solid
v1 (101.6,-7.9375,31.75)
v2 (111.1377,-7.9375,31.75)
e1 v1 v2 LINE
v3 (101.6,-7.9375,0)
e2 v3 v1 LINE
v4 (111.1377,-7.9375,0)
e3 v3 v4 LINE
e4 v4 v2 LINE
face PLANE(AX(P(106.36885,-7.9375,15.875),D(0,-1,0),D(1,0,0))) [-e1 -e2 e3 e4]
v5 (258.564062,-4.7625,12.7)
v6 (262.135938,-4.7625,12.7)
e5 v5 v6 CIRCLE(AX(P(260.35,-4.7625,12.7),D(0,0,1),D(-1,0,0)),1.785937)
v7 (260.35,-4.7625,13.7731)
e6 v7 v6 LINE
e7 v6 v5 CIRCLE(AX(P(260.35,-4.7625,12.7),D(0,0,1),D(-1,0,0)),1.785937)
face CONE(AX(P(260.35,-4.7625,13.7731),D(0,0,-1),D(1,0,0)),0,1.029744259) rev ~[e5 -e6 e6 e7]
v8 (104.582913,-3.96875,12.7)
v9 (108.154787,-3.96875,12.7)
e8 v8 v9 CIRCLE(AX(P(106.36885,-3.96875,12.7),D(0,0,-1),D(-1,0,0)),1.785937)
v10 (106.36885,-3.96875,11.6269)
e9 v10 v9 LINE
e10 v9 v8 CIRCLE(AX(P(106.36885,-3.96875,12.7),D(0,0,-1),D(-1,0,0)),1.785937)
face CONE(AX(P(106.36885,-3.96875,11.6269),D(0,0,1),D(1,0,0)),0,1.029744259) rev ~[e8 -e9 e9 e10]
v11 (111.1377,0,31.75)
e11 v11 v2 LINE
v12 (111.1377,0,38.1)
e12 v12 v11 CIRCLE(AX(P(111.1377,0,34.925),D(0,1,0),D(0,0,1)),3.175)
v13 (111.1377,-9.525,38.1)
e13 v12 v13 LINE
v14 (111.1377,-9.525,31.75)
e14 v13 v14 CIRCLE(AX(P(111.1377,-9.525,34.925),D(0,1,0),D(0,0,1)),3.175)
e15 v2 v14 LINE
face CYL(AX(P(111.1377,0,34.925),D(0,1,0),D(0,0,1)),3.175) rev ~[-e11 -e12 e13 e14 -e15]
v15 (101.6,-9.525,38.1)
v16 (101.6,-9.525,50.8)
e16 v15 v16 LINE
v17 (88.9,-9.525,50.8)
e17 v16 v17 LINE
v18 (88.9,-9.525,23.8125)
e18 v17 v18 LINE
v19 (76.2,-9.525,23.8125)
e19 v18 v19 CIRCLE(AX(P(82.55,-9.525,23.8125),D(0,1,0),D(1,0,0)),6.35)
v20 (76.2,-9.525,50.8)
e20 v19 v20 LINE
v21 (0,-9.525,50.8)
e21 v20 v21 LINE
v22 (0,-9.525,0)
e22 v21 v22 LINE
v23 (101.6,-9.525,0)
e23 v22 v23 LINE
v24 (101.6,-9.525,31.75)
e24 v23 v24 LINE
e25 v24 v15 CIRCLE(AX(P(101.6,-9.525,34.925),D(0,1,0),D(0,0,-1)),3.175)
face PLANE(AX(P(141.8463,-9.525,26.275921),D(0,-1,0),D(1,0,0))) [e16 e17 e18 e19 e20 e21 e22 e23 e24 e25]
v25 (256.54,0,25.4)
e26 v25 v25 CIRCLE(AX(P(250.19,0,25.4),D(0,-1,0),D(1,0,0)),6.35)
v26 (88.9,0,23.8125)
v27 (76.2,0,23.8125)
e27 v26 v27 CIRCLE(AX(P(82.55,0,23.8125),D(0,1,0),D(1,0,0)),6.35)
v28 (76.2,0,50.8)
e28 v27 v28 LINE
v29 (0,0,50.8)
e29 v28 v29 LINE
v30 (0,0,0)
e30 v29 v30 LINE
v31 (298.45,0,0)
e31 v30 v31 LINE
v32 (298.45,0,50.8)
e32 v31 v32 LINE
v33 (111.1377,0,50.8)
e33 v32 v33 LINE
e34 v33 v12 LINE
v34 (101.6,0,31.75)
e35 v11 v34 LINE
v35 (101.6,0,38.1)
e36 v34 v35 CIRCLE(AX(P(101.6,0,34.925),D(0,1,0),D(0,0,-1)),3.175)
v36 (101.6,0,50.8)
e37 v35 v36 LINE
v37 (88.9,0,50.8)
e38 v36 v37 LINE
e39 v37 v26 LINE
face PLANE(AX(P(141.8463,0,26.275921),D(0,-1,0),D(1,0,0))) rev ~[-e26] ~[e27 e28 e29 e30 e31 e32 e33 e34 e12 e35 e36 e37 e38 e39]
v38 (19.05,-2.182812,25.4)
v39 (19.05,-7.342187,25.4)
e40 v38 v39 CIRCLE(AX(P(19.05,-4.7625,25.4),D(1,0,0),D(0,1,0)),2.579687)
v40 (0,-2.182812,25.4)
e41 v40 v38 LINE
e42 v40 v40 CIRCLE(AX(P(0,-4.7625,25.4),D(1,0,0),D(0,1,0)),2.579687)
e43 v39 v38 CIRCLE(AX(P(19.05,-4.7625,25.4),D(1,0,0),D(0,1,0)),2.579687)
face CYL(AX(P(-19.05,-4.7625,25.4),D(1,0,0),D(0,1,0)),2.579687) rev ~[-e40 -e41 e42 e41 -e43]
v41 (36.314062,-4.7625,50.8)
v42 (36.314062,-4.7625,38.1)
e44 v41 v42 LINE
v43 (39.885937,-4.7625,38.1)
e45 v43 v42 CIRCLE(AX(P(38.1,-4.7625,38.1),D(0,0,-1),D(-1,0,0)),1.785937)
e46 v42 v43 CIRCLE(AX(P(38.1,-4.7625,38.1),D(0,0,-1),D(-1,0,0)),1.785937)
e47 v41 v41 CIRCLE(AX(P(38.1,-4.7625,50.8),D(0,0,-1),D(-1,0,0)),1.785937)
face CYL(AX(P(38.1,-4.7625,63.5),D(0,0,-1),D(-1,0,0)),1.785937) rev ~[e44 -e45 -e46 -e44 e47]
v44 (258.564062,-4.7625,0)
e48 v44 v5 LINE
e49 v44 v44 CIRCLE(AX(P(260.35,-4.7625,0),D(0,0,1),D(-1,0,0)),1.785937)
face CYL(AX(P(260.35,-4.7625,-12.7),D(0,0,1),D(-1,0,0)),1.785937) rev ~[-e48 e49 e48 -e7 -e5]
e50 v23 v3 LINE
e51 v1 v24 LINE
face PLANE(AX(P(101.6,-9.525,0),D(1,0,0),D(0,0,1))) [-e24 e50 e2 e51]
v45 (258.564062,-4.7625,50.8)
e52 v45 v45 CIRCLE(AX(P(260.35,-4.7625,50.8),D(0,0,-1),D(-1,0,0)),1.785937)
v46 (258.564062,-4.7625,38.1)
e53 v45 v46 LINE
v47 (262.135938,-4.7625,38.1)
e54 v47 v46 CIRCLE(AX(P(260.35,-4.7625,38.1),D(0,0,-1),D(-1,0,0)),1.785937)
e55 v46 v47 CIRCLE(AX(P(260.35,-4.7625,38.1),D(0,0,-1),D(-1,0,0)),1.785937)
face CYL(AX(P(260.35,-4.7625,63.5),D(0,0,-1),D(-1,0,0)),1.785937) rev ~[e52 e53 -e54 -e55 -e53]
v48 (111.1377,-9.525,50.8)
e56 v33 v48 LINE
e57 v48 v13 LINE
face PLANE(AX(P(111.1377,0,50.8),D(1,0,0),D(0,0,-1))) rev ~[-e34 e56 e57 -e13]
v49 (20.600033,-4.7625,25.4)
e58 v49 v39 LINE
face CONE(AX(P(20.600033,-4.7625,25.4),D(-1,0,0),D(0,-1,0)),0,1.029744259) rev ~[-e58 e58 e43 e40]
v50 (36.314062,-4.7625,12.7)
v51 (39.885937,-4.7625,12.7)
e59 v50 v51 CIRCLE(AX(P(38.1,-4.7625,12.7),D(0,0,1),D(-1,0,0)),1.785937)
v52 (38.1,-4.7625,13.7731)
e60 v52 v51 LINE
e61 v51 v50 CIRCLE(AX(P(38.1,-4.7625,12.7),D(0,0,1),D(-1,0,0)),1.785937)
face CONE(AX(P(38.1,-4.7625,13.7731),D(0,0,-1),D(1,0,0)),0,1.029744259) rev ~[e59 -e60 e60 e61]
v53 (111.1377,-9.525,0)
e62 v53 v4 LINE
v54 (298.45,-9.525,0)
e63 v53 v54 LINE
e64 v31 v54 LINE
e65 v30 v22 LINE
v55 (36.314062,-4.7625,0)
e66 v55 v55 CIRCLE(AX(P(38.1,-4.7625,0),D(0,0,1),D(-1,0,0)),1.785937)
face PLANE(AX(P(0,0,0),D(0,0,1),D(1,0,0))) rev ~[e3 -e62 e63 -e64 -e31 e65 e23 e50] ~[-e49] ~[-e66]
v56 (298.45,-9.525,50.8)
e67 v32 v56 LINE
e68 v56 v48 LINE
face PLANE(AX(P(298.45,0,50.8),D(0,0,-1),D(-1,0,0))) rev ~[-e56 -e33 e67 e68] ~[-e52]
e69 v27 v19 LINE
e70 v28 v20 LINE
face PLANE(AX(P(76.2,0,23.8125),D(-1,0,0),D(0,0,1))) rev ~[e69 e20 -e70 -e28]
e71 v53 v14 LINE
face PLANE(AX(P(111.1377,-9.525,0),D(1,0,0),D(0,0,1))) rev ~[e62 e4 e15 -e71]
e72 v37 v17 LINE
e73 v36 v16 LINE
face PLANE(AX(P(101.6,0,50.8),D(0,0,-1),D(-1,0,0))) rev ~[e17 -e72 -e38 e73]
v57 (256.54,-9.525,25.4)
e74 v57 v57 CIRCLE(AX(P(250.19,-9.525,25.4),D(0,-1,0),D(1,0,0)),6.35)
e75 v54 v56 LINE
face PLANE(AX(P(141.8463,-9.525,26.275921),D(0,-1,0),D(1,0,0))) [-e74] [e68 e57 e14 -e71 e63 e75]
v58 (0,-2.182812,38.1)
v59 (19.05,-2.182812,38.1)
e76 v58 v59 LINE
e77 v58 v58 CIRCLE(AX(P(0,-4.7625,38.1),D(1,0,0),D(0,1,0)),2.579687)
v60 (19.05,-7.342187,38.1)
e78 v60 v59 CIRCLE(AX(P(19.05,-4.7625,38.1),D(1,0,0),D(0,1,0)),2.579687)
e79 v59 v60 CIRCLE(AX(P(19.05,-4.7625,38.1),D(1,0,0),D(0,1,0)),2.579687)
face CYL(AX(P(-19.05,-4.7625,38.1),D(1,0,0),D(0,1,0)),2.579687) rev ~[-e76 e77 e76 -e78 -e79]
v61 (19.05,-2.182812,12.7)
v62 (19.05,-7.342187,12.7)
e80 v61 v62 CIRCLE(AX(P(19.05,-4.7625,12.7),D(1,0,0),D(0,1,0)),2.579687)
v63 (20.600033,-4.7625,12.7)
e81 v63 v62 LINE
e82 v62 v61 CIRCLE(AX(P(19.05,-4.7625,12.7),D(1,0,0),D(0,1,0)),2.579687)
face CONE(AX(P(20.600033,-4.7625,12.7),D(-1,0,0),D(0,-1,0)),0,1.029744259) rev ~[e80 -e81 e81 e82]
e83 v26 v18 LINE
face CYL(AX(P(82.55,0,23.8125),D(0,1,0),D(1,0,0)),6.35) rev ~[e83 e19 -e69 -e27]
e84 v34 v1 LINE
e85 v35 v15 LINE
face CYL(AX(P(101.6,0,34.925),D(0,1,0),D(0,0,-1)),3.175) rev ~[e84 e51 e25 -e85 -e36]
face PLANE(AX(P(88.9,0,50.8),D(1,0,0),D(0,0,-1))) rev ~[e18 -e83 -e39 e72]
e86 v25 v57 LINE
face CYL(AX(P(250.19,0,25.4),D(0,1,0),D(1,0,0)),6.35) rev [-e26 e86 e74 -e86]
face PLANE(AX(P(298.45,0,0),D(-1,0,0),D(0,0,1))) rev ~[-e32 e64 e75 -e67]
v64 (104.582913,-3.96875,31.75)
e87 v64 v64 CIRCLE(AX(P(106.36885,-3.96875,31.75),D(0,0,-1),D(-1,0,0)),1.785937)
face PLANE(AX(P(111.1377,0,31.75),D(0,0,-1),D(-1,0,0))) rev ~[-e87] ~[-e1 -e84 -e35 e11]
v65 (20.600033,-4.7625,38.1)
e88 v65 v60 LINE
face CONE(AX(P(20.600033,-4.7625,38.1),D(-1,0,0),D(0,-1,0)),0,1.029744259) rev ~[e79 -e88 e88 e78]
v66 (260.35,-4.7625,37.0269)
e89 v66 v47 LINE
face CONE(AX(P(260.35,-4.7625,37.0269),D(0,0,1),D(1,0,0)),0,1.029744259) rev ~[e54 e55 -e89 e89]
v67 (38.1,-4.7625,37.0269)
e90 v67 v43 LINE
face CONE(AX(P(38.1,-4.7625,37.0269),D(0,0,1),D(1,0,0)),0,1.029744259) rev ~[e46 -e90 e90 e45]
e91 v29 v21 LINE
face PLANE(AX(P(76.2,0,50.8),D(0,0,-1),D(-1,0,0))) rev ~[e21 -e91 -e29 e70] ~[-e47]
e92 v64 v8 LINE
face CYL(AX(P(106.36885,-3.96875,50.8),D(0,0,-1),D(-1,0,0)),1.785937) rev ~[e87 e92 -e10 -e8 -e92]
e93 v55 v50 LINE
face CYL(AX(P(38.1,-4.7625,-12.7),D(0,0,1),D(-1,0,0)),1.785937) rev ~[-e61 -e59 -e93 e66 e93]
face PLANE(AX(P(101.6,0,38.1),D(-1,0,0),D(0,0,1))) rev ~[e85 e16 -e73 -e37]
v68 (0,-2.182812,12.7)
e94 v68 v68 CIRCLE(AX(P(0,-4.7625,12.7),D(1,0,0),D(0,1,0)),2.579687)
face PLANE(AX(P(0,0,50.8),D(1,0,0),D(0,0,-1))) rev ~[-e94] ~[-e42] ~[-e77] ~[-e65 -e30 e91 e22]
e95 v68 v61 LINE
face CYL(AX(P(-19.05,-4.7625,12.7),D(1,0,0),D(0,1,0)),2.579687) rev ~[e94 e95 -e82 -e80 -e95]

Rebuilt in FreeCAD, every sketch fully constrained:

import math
import FreeCAD as App
import Part
import Sketcher
Q = App.Units.Quantity

doc = App.newDocument("Part")
params = doc.addObject("Spreadsheet::Sheet", "Params")
for row, (alias, value) in enumerate([
    ("sketch1_diameter", "0.5 in"),
    ("sketch1_width", "3 in"),
    ("sketch1_height", "2 in"),
    ("sketch1_width2", "0.5 in"),
    ("sketch1_radius", "0.125 in"),
    ("pad1_length", "0.375 in"),
    ("sketch2_height", "1.25 in"),
    ("pocket1_length", "0.0625 in"),
    ("sketch3_diameter", "0.203125 in"),
    ("hole_diameter", "0.203125 in"),
    ("hole_depth", "0.75 in"),
    ("sketch4_diameter", "0.140625 in"),
    ("hole2_diameter", "0.140625 in"),
    ("hole2_depth", "0.75 in"),
    ("sketch5_diameter", "0.140625 in"),
    ("hole3_diameter", "0.140625 in"),
    ("hole3_depth", "0.5 in"),
    ("sketch6_diameter", "0.140625 in"),
    ("hole4_diameter", "0.140625 in"),
    ("hole4_depth", "0.5 in"),
], start=1):
    params.set(f"A{row}", alias)
    params.set(f"B{row}", "=" + value)
    params.setAlias(f"B{row}", alias)

body = doc.addObject("PartDesign::Body", "Body")

sketch1 = doc.addObject("Sketcher::SketchObject", "Sketch")
body.addObject(sketch1)
sketch1.AttachmentSupport = (doc.XZ_Plane, [""])
sketch1.MapMode = "FlatFace"
sketch1.addGeometry([
    Part.LineSegment(App.Vector(0, 50.8, 0), App.Vector(0, 0, 0)),
    Part.LineSegment(App.Vector(0, 0, 0), App.Vector(298.45, 0, 0)),
    Part.LineSegment(App.Vector(298.45, 0, 0), App.Vector(298.45, 50.8, 0)),
    Part.LineSegment(App.Vector(298.45, 50.8, 0), App.Vector(111.1377, 50.8, 0)),
    Part.LineSegment(App.Vector(111.1377, 50.8, 0), App.Vector(111.1377, 38.1, 0)),
    Part.ArcOfCircle(Part.Circle(App.Vector(111.1377, 34.925, 0), App.Vector(0, 0, 1), 3.175), math.radians(-90), math.radians(90)),
    Part.LineSegment(App.Vector(111.1377, 31.75, 0), App.Vector(101.6, 31.75, 0)),
    Part.ArcOfCircle(Part.Circle(App.Vector(101.6, 34.925, 0), App.Vector(0, 0, 1), 3.175), math.radians(90), math.radians(270)),
    Part.LineSegment(App.Vector(101.6, 38.1, 0), App.Vector(101.6, 50.8, 0)),
    Part.LineSegment(App.Vector(101.6, 50.8, 0), App.Vector(88.9, 50.8, 0)),
    Part.LineSegment(App.Vector(88.9, 50.8, 0), App.Vector(88.9, 23.8125, 0)),
    Part.ArcOfCircle(Part.Circle(App.Vector(82.55, 23.8125, 0), App.Vector(0, 0, 1), 6.35), math.radians(180), math.radians(360)),
    Part.LineSegment(App.Vector(76.2, 23.8125, 0), App.Vector(76.2, 50.8, 0)),
    Part.LineSegment(App.Vector(76.2, 50.8, 0), App.Vector(0, 50.8, 0)),
    Part.Circle(App.Vector(250.19, 25.4, 0), App.Vector(0, 0, 1), 6.35),
], False)
sketch1.addConstraint([
    Sketcher.Constraint("Coincident", 0, 2, 1, 1),
    Sketcher.Constraint("Coincident", 1, 2, 2, 1),
    Sketcher.Constraint("Coincident", 2, 2, 3, 1),
    Sketcher.Constraint("Coincident", 3, 2, 4, 1),
    Sketcher.Constraint("Coincident", 4, 2, 5, 2),
    Sketcher.Constraint("Tangent", 5, 1, 6, 1),
    Sketcher.Constraint("Tangent", 6, 2, 7, 2),
    Sketcher.Constraint("Coincident", 7, 1, 8, 1),
    Sketcher.Constraint("Coincident", 8, 2, 9, 1),
    Sketcher.Constraint("Coincident", 9, 2, 10, 1),
    Sketcher.Constraint("Tangent", 10, 2, 11, 2),
    Sketcher.Constraint("Tangent", 11, 1, 12, 1),
    Sketcher.Constraint("Coincident", 12, 2, 13, 1),
    Sketcher.Constraint("Coincident", 13, 2, 0, 1),
    Sketcher.Constraint("Vertical", 0),
    Sketcher.Constraint("Horizontal", 1),
    Sketcher.Constraint("Vertical", 2),
    Sketcher.Constraint("Horizontal", 3),
    Sketcher.Constraint("Vertical", 4),
    Sketcher.Constraint("Horizontal", 6),
    Sketcher.Constraint("Vertical", 8),
    Sketcher.Constraint("Horizontal", 9),
    Sketcher.Constraint("Vertical", 10),
    Sketcher.Constraint("Vertical", 12),
    Sketcher.Constraint("Horizontal", 13),
    Sketcher.Constraint("Coincident", 0, 2, -1, 1),
    Sketcher.Constraint("Equal", 5, 7),
    Sketcher.Constraint("Equal", 11, 14),
    Sketcher.Constraint("Horizontal", 3, 2, 8, 2),
    Sketcher.Constraint("Horizontal", 9, 2, 12, 2),
    Sketcher.Constraint("Vertical", 5, 3, 3, 2),
    Sketcher.Constraint("Vertical", 6, 2, 7, 1),
    Sketcher.Constraint("Equal", 9, 4),
    Sketcher.Constraint("Diameter", 14, Q("0.5 in")),
    Sketcher.Constraint("DistanceX", 13, 2, 13, 1, Q("3 in")),
    Sketcher.Constraint("DistanceY", 0, 2, 0, 1, Q("2 in")),
    Sketcher.Constraint("DistanceX", 9, 2, 9, 1, Q("0.5 in")),
    Sketcher.Constraint("DistanceY", -1, 1, 14, 3, Q("1 in")),
    Sketcher.Constraint("Radius", 5, Q("0.125 in")),
    Sketcher.Constraint("DistanceX", 1, 1, 1, 2, Q("11.75 in")),
    Sketcher.Constraint("DistanceX", 11, 3, 14, 3, Q("6.6 in")),
    Sketcher.Constraint("DistanceY", 10, 2, 10, 1, Q("1.0625 in")),
    Sketcher.Constraint("DistanceX", 3, 2, 3, 1, Q("7.3745 in")),
])
sketch1.setExpression("Constraints[33]", "Params.sketch1_diameter")
sketch1.setExpression("Constraints[34]", "Params.sketch1_width")
sketch1.setExpression("Constraints[35]", "Params.sketch1_height")
sketch1.setExpression("Constraints[36]", "Params.sketch1_width2")
sketch1.setExpression("Constraints[38]", "Params.sketch1_radius")
pad1 = doc.addObject("PartDesign::Pad", "Pad")
body.addObject(pad1)
pad1.Profile = sketch1
pad1.setExpression("Length", "Params.pad1_length")

sketch2 = doc.addObject("Sketcher::SketchObject", "Sketch001")
body.addObject(sketch2)
sketch2.AttachmentSupport = (doc.XZ_Plane, [""])
sketch2.MapMode = "FlatFace"
sketch2.AttachmentOffset = App.Placement(App.Vector(0, 0, 0.375 * 25.4), App.Rotation())
sketch2.addGeometry([
    Part.LineSegment(App.Vector(101.6, 31.75, 0), App.Vector(101.6, 0, 0)),
    Part.LineSegment(App.Vector(101.6, 0, 0), App.Vector(111.1377, 0, 0)),
    Part.LineSegment(App.Vector(111.1377, 0, 0), App.Vector(111.1377, 31.75, 0)),
    Part.LineSegment(App.Vector(111.1377, 31.75, 0), App.Vector(101.6, 31.75, 0)),
], False)
sketch2.addConstraint([
    Sketcher.Constraint("Coincident", 0, 2, 1, 1),
    Sketcher.Constraint("Coincident", 1, 2, 2, 1),
    Sketcher.Constraint("Coincident", 2, 2, 3, 1),
    Sketcher.Constraint("Coincident", 3, 2, 0, 1),
    Sketcher.Constraint("Vertical", 0),
    Sketcher.Constraint("Horizontal", 1),
    Sketcher.Constraint("Vertical", 2),
    Sketcher.Constraint("Horizontal", 3),
    Sketcher.Constraint("PointOnObject", 0, 2, -1),
    Sketcher.Constraint("DistanceX", -1, 1, 0, 2, Q("4 in")),
    Sketcher.Constraint("DistanceY", 0, 2, 0, 1, Q("1.25 in")),
    Sketcher.Constraint("DistanceX", 1, 1, 1, 2, Q("0.3755 in")),
])
sketch2.setExpression("Constraints[10]", "Params.sketch2_height")
pocket1 = doc.addObject("PartDesign::Pocket", "Pocket")
body.addObject(pocket1)
pocket1.Profile = sketch2
pocket1.setExpression("Length", "Params.pocket1_length")

sketch3 = doc.addObject("Sketcher::SketchObject", "Sketch002")
body.addObject(sketch3)
sketch3.AttachmentSupport = (doc.YZ_Plane, [""])
sketch3.MapMode = "FlatFace"
sketch3.addGeometry([
    Part.Circle(App.Vector(-4.7625, 38.1, 0), App.Vector(0, 0, 1), 2.579687),
    Part.Circle(App.Vector(-4.7625, 25.4, 0), App.Vector(0, 0, 1), 2.579687),
    Part.Circle(App.Vector(-4.7625, 12.7, 0), App.Vector(0, 0, 1), 2.579687),
], False)
sketch3.addConstraint([
    Sketcher.Constraint("Equal", 0, 1),
    Sketcher.Constraint("Equal", 1, 2),
    Sketcher.Constraint("Vertical", 0, 3, 1, 3),
    Sketcher.Constraint("Vertical", 1, 3, 2, 3),
    Sketcher.Constraint("Diameter", 0, Q("0.203125 in")),
    Sketcher.Constraint("DistanceY", -1, 1, 1, 3, Q("1 in")),
    Sketcher.Constraint("DistanceY", 2, 3, 0, 3, Q("1 in")),
    Sketcher.Constraint("DistanceY", -1, 1, 0, 3, Q("1.5 in")),
    Sketcher.Constraint("DistanceX", 0, 3, -1, 1, Q("0.1875 in")),
])
sketch3.setExpression("Constraints[4]", "Params.sketch3_diameter")
doc.recompute()
hole = doc.addObject("PartDesign::Hole", "Hole")
body.addObject(hole)
hole.Profile = sketch3
hole.ThreadType = "None"
hole.setExpression("Diameter", "Params.hole_diameter")
hole.DepthType = "Dimension"
hole.setExpression("Depth", "Params.hole_depth")
hole.DrillPoint = "Angled"
hole.DrillPointAngle = 118
hole.Reversed = True

sketch4 = doc.addObject("Sketcher::SketchObject", "Sketch003")
body.addObject(sketch4)
sketch4.AttachmentSupport = (doc.XY_Plane, [""])
sketch4.MapMode = "FlatFace"
sketch4.AttachmentOffset = App.Placement(App.Vector(0, 0, 1.25 * 25.4), App.Rotation())
sketch4.addGeometry(Part.Circle(App.Vector(106.36885, -3.96875, 0), App.Vector(0, 0, 1), 1.785937), False)
sketch4.addConstraint([
    Sketcher.Constraint("Diameter", 0, Q("0.140625 in")),
    Sketcher.Constraint("DistanceY", 0, 3, -1, 1, Q("0.15625 in")),
    Sketcher.Constraint("DistanceX", -1, 1, 0, 3, Q("106.36885 mm")),
])
sketch4.setExpression("Constraints[0]", "Params.sketch4_diameter")
doc.recompute()
hole2 = doc.addObject("PartDesign::Hole", "Hole001")
body.addObject(hole2)
hole2.Profile = sketch4
hole2.ThreadType = "None"
hole2.setExpression("Diameter", "Params.hole2_diameter")
hole2.DepthType = "Dimension"
hole2.setExpression("Depth", "Params.hole2_depth")
hole2.DrillPoint = "Angled"
hole2.DrillPointAngle = 118

sketch5 = doc.addObject("Sketcher::SketchObject", "Sketch004")
body.addObject(sketch5)
sketch5.AttachmentSupport = (doc.XY_Plane, [""])
sketch5.MapMode = "FlatFace"
sketch5.AttachmentOffset = App.Placement(App.Vector(0, 0, 2 * 25.4), App.Rotation())
sketch5.addGeometry([
    Part.Circle(App.Vector(38.1, -4.7625, 0), App.Vector(0, 0, 1), 1.785937),
    Part.Circle(App.Vector(260.35, -4.7625, 0), App.Vector(0, 0, 1), 1.785937),
], False)
sketch5.addConstraint([
    Sketcher.Constraint("Equal", 0, 1),
    Sketcher.Constraint("Horizontal", 0, 3, 1, 3),
    Sketcher.Constraint("Diameter", 0, Q("0.140625 in")),
    Sketcher.Constraint("DistanceX", -1, 1, 0, 3, Q("1.5 in")),
    Sketcher.Constraint("DistanceX", -1, 1, 1, 3, Q("10.25 in")),
    Sketcher.Constraint("DistanceY", 0, 3, -1, 1, Q("0.1875 in")),
])
sketch5.setExpression("Constraints[2]", "Params.sketch5_diameter")
doc.recompute()
hole3 = doc.addObject("PartDesign::Hole", "Hole002")
body.addObject(hole3)
hole3.Profile = sketch5
hole3.ThreadType = "None"
hole3.setExpression("Diameter", "Params.hole3_diameter")
hole3.DepthType = "Dimension"
hole3.setExpression("Depth", "Params.hole3_depth")
hole3.DrillPoint = "Angled"
hole3.DrillPointAngle = 118

sketch6 = doc.addObject("Sketcher::SketchObject", "Sketch005")
body.addObject(sketch6)
sketch6.AttachmentSupport = (doc.XY_Plane, [""])
sketch6.MapMode = "FlatFace"
sketch6.addGeometry([
    Part.Circle(App.Vector(260.35, -4.7625, 0), App.Vector(0, 0, 1), 1.785937),
    Part.Circle(App.Vector(38.1, -4.7625, 0), App.Vector(0, 0, 1), 1.785937),
], False)
sketch6.addConstraint([
    Sketcher.Constraint("Equal", 0, 1),
    Sketcher.Constraint("Horizontal", 0, 3, 1, 3),
    Sketcher.Constraint("Diameter", 0, Q("0.140625 in")),
    Sketcher.Constraint("DistanceX", -1, 1, 1, 3, Q("1.5 in")),
    Sketcher.Constraint("DistanceX", -1, 1, 0, 3, Q("10.25 in")),
    Sketcher.Constraint("DistanceY", 0, 3, -1, 1, Q("0.1875 in")),
])
sketch6.setExpression("Constraints[2]", "Params.sketch6_diameter")
doc.recompute()
hole4 = doc.addObject("PartDesign::Hole", "Hole003")
body.addObject(hole4)
hole4.Profile = sketch6
hole4.ThreadType = "None"
hole4.setExpression("Diameter", "Params.hole4_diameter")
hole4.DepthType = "Dimension"
hole4.setExpression("Depth", "Params.hole4_depth")
hole4.DrillPoint = "Angled"
hole4.DrillPointAngle = 118
hole4.Reversed = True

doc.recompute()
